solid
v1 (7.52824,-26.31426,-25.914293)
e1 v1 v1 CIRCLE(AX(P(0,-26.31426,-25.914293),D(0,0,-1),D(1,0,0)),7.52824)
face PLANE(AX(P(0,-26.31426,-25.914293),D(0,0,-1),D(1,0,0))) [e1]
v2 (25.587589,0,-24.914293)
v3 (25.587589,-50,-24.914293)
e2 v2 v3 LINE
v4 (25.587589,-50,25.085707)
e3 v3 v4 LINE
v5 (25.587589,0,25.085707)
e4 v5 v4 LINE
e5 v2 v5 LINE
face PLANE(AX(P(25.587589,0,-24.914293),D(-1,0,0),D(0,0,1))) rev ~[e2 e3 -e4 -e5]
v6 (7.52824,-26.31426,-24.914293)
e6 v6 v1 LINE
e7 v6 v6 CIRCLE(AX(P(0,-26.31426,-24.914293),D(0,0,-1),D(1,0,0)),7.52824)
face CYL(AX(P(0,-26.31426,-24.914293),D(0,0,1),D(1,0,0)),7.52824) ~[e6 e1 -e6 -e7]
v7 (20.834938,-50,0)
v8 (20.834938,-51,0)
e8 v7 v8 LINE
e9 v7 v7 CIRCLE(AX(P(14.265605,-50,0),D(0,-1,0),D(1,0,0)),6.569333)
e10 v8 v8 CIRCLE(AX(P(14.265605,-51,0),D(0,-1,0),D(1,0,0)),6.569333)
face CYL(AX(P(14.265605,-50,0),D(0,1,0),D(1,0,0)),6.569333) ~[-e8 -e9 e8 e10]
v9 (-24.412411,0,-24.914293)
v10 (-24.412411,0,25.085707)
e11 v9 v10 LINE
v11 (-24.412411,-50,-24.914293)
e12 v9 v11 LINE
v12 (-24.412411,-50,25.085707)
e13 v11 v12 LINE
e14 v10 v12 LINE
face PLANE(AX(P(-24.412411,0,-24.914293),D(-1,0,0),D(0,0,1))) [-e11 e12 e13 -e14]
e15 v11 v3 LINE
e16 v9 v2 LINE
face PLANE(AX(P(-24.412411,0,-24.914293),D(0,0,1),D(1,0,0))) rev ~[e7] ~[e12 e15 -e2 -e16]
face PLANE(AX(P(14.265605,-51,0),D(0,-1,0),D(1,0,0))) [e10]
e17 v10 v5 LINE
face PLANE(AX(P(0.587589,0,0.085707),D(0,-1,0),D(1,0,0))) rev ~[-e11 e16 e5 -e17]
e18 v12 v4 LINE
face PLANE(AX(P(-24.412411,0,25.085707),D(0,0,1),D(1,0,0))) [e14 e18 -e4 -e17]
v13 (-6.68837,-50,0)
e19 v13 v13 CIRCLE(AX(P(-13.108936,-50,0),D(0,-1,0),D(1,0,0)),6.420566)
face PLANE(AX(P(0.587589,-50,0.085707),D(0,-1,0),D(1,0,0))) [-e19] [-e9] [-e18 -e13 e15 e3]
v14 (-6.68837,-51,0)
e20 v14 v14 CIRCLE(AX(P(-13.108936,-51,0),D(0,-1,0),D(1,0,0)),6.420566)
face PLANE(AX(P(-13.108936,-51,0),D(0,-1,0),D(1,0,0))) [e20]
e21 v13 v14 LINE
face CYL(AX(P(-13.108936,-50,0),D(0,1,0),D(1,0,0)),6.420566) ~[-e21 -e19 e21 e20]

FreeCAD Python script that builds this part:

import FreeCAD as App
import Part
import Sketcher
Q = App.Units.Quantity

doc = App.newDocument("Part")
params = doc.addObject("Spreadsheet::Sheet", "Params")
for row, (alias, value) in enumerate([
    ("sketch1_width", "50 mm"),
    ("pad1_length", "50 mm"),
    ("pad2_length", "1 mm"),
    ("pad3_length", "1 mm"),
], start=1):
    params.set(f"A{row}", alias)
    params.set(f"B{row}", "=" + value)
    params.setAlias(f"B{row}", alias)

body = doc.addObject("PartDesign::Body", "Body")

# Sketch on XZ plane
sketch1 = body.newObject("Sketcher::SketchObject", "Sketch")
sketch1.AttachmentSupport = (doc.getObject("XZ_Plane"), [""])
sketch1.MapMode = "FlatFace"
sketch1.addGeometry([
    Part.LineSegment(App.Vector(-24, 25, 0), App.Vector(-24, -25, 0)),
    Part.LineSegment(App.Vector(-24, -25, 0), App.Vector(26, -25, 0)),
    Part.LineSegment(App.Vector(26, -25, 0), App.Vector(26, 25, 0)),
    Part.LineSegment(App.Vector(26, 25, 0), App.Vector(-24, 25, 0)),
], False)
sketch1.addConstraint([
    Sketcher.Constraint("Coincident", 0, 2, 1, 1),
    Sketcher.Constraint("Coincident", 1, 2, 2, 1),
    Sketcher.Constraint("Coincident", 2, 2, 3, 1),
    Sketcher.Constraint("Coincident", 3, 2, 0, 1),
    Sketcher.Constraint("Vertical", 0),
    Sketcher.Constraint("Horizontal", 1),
    Sketcher.Constraint("Vertical", 2),
    Sketcher.Constraint("Horizontal", 3),
    Sketcher.Constraint("Equal", 3, 0),
    Sketcher.Constraint("DistanceX", 1, 1, 1, 2, Q("50 mm")),
    Sketcher.Constraint("DistanceX", 0, 2, -1, 1, Q("24.412411 mm")),
    Sketcher.Constraint("DistanceY", 0, 2, -1, 1, Q("24.914293 mm")),
])
sketch1.setExpression("Constraints[9]", "Params.sketch1_width")
pad1 = body.newObject("PartDesign::Pad", "Pad")
pad1.Profile = sketch1
pad1.setExpression("Length", "Params.pad1_length")

# Sketch on XY plane
sketch2 = body.newObject("Sketcher::SketchObject", "Sketch001")
sketch2.AttachmentSupport = (doc.getObject("XY_Plane"), [""])
sketch2.MapMode = "FlatFace"
sketch2.AttachmentOffset = App.Placement(App.Vector(0, 0, -24.914293), App.Rotation())
sketch2.addGeometry(Part.Circle(App.Vector(0, -26, 0), App.Vector(0, 0, 1), 8), False)
sketch2.addConstraint([
    Sketcher.Constraint("PointOnObject", 0, 3, -2),
    Sketcher.Constraint("Diameter", 0, Q("15.05648 mm")),
    Sketcher.Constraint("DistanceY", 0, 3, -1, 1, Q("26.31426 mm")),
])
pad2 = body.newObject("PartDesign::Pad", "Pad001")
pad2.Profile = sketch2
pad2.setExpression("Length", "Params.pad2_length")
pad2.Reversed = True

# Sketch on XZ plane
sketch3 = body.newObject("Sketcher::SketchObject", "Sketch002")
sketch3.AttachmentSupport = (doc.getObject("XZ_Plane"), [""])
sketch3.MapMode = "FlatFace"
sketch3.AttachmentOffset = App.Placement(App.Vector(0, 0, 50), App.Rotation())
sketch3.addGeometry([
    Part.Circle(App.Vector(-13, 0, 0), App.Vector(0, 0, 1), 6),
    Part.Circle(App.Vector(14, 0, 0), App.Vector(0, 0, 1), 7),
], False)
sketch3.addConstraint([
    Sketcher.Constraint("PointOnObject", 0, 3, -1),
    Sketcher.Constraint("PointOnObject", 1, 3, -1),
    Sketcher.Constraint("Diameter", 0, Q("12.841132 mm")),
    Sketcher.Constraint("Diameter", 1, Q("13.138666 mm")),
    Sketcher.Constraint("DistanceX", 0, 3, 1, 3, Q("27.374541 mm")),
    Sketcher.Constraint("DistanceX", 0, 3, -1, 1, Q("13.108936 mm")),
])
pad3 = body.newObject("PartDesign::Pad", "Pad002")
pad3.Profile = sketch3
pad3.setExpression("Length", "Params.pad3_length")

doc.recompute()
